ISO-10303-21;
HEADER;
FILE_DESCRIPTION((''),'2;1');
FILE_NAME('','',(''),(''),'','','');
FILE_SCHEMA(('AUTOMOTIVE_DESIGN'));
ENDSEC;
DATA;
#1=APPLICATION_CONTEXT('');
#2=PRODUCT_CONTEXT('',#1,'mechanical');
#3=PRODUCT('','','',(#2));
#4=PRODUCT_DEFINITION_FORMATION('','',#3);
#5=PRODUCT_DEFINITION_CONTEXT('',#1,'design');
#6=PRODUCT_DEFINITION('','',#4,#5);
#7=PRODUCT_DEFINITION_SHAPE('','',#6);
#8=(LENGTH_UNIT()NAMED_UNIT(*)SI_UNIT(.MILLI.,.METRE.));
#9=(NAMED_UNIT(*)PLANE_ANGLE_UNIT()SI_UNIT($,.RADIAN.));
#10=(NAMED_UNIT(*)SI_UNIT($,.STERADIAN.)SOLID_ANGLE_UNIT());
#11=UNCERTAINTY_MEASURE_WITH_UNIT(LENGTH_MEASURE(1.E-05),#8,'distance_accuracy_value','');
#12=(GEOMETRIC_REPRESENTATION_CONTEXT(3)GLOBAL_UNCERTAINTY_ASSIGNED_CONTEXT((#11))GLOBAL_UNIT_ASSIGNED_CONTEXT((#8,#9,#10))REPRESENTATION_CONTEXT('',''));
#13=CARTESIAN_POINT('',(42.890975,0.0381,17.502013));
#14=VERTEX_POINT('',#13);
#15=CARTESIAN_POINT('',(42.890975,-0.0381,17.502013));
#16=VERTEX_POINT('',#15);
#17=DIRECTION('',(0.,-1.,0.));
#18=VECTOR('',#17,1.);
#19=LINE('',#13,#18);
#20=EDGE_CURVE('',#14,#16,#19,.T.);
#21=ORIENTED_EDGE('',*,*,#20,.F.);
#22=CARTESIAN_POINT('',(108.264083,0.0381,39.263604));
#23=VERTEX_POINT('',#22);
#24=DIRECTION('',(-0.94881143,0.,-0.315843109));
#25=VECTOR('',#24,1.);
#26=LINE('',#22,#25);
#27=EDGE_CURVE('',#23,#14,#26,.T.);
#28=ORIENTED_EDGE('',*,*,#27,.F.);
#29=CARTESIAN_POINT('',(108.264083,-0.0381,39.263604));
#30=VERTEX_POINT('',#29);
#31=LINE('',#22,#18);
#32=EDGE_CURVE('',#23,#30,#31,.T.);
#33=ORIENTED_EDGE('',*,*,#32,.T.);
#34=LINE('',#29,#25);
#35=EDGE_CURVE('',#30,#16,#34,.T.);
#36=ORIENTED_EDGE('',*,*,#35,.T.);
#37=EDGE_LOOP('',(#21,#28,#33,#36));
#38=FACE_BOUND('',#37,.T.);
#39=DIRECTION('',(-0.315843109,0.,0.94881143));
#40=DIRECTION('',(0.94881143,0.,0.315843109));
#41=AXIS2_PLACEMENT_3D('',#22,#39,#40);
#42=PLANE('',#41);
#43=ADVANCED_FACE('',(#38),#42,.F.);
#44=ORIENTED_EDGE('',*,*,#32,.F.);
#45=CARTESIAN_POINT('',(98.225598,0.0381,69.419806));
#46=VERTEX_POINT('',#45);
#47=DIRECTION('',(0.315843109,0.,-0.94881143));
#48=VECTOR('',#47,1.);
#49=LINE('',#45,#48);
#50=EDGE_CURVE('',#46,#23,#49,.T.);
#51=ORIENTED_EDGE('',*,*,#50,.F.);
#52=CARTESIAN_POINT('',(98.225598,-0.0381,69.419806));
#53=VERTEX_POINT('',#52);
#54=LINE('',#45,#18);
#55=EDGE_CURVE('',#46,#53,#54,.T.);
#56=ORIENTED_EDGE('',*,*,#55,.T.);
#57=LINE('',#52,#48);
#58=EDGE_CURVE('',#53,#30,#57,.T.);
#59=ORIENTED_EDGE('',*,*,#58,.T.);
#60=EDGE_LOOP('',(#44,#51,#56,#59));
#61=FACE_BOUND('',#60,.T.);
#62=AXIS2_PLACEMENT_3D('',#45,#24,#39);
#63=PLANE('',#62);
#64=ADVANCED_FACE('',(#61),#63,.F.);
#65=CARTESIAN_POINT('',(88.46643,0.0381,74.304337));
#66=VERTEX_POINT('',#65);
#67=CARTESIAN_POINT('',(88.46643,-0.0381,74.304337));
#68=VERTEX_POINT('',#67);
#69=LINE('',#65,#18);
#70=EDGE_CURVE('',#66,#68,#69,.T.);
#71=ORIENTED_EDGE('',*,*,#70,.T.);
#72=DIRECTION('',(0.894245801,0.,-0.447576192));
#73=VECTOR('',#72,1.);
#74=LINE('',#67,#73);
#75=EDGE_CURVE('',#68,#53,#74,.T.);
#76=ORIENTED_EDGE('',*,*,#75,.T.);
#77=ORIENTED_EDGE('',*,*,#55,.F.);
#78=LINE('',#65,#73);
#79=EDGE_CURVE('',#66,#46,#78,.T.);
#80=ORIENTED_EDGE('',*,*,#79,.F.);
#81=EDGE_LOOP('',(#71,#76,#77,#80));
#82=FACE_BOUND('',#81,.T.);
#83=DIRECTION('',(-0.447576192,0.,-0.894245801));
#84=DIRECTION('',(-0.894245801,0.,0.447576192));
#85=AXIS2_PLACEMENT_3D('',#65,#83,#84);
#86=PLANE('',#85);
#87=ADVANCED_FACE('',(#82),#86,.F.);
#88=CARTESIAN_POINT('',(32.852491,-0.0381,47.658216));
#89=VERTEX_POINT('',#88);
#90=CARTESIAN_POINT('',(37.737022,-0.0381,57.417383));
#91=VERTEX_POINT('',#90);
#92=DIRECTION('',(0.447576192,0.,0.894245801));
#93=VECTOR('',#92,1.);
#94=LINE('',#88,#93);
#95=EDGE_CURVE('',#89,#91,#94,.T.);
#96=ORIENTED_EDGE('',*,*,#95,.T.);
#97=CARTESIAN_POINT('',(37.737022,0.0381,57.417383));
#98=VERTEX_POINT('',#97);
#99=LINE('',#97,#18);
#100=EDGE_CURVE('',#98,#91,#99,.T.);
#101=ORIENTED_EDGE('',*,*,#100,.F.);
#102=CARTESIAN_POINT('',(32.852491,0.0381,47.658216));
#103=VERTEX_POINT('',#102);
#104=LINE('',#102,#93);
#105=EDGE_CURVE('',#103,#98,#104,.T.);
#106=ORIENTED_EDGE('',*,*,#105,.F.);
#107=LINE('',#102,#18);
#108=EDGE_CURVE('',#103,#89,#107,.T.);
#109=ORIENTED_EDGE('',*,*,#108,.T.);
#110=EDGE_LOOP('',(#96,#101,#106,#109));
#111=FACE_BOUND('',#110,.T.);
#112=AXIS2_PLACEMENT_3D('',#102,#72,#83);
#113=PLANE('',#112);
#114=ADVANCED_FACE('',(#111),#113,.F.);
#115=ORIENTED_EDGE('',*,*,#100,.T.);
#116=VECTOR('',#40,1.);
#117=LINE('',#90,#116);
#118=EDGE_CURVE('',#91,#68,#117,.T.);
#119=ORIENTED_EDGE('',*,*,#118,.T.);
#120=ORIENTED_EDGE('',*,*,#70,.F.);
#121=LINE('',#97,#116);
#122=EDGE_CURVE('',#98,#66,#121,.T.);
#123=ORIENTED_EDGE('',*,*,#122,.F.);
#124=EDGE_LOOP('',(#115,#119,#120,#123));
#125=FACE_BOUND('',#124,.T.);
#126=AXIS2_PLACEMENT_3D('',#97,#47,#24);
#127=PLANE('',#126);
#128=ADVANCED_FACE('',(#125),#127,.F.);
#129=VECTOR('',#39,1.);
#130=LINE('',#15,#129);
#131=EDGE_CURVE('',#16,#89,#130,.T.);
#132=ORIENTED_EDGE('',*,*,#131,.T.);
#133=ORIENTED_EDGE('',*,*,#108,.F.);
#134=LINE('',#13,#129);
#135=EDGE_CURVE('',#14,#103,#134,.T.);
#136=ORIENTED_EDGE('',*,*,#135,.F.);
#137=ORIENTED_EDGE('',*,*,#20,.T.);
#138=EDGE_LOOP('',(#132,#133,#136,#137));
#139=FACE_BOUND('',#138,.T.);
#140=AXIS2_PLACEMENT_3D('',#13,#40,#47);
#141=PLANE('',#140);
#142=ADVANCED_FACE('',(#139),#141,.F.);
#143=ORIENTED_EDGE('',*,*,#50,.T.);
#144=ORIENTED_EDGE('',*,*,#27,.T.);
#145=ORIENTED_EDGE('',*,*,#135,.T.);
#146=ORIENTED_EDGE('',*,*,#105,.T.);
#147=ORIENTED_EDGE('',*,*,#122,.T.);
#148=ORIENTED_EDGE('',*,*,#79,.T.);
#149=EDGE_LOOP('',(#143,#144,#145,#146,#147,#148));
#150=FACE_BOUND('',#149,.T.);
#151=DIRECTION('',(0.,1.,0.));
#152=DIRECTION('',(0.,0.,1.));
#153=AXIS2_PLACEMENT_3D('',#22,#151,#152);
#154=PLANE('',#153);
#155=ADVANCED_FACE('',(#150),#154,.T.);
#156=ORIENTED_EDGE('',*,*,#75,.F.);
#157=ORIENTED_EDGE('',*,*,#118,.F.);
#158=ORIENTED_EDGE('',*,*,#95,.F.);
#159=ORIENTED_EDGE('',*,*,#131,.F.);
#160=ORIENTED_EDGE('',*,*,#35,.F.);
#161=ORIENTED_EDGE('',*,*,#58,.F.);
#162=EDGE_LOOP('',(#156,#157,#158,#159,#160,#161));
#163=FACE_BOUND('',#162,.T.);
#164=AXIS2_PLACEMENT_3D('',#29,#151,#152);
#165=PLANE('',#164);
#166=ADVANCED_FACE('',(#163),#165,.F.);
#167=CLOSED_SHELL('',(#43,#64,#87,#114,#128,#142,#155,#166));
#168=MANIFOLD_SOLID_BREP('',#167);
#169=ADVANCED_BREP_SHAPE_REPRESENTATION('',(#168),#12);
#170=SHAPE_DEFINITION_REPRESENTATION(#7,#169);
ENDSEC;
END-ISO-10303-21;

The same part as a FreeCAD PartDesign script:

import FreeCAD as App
import Part
import Sketcher
from FreeCAD import Vector

doc = App.newDocument("Part")
body = doc.addObject("PartDesign::Body", "Body")

sketch1 = doc.addObject("Sketcher::SketchObject", "Sketch")
body.addObject(sketch1)
sketch1.AttachmentSupport = (doc.XZ_Plane, [""])
sketch1.MapMode = "FlatFace"
sketch1.addGeometry(Part.LineSegment(Vector(108.264083, 39.263604, 0), Vector(42.890975, 17.502013, 0)), False)
sketch1.addGeometry(Part.LineSegment(Vector(42.890975, 17.502013, 0), Vector(32.852491, 47.658216, 0)), False)
sketch1.addGeometry(Part.LineSegment(Vector(32.852491, 47.658216, 0), Vector(37.737022, 57.417383, 0)), False)
sketch1.addGeometry(Part.LineSegment(Vector(37.737022, 57.417383, 0), Vector(88.46643, 74.304337, 0)), False)
sketch1.addGeometry(Part.LineSegment(Vector(88.46643, 74.304337, 0), Vector(98.225598, 69.419806, 0)), False)
sketch1.addGeometry(Part.LineSegment(Vector(98.225598, 69.419806, 0), Vector(108.264083, 39.263604, 0)), False)
sketch1.addConstraint(Sketcher.Constraint("Coincident", 0, 2, 1, 1))
sketch1.addConstraint(Sketcher.Constraint("Coincident", 1, 2, 2, 1))
sketch1.addConstraint(Sketcher.Constraint("Coincident", 2, 2, 3, 1))
sketch1.addConstraint(Sketcher.Constraint("Coincident", 3, 2, 4, 1))
sketch1.addConstraint(Sketcher.Constraint("Coincident", 4, 2, 5, 1))
sketch1.addConstraint(Sketcher.Constraint("Coincident", 5, 2, 0, 1))
sketch1.addConstraint(Sketcher.Constraint("Perpendicular", 0, 1))
sketch1.addConstraint(Sketcher.Constraint("Perpendicular", 1, 3))
sketch1.addConstraint(Sketcher.Constraint("Perpendicular", 2, 4))
sketch1.addConstraint(Sketcher.Constraint("Perpendicular", 3, 5))
sketch1.addConstraint(Sketcher.Constraint("Equal", 2, 4))
sketch1.addConstraint(Sketcher.Constraint("Equal", 1, 5))
sketch1.addConstraint(Sketcher.Constraint("Distance", 0, 68.9))
sketch1.addConstraint(Sketcher.Constraint("DistanceX", -1, 1, 4, 2, 98.225598))
sketch1.addConstraint(Sketcher.Constraint("Distance", 3, 53.466271))
sketch1.addConstraint(Sketcher.Constraint("DistanceX", -1, 1, 1, 2, 32.852491))
sketch1.addConstraint(Sketcher.Constraint("DistanceY", 0, 2, 2, 2, 39.91537))
sketch1.addConstraint(Sketcher.Constraint("DistanceY", -1, 1, 0, 2, 17.502013))
pad1 = doc.addObject("PartDesign::Pad", "Pad")
body.addObject(pad1)
pad1.Profile = sketch1
pad1.Length = 0.0762
pad1.Midplane = True

doc.recompute()
